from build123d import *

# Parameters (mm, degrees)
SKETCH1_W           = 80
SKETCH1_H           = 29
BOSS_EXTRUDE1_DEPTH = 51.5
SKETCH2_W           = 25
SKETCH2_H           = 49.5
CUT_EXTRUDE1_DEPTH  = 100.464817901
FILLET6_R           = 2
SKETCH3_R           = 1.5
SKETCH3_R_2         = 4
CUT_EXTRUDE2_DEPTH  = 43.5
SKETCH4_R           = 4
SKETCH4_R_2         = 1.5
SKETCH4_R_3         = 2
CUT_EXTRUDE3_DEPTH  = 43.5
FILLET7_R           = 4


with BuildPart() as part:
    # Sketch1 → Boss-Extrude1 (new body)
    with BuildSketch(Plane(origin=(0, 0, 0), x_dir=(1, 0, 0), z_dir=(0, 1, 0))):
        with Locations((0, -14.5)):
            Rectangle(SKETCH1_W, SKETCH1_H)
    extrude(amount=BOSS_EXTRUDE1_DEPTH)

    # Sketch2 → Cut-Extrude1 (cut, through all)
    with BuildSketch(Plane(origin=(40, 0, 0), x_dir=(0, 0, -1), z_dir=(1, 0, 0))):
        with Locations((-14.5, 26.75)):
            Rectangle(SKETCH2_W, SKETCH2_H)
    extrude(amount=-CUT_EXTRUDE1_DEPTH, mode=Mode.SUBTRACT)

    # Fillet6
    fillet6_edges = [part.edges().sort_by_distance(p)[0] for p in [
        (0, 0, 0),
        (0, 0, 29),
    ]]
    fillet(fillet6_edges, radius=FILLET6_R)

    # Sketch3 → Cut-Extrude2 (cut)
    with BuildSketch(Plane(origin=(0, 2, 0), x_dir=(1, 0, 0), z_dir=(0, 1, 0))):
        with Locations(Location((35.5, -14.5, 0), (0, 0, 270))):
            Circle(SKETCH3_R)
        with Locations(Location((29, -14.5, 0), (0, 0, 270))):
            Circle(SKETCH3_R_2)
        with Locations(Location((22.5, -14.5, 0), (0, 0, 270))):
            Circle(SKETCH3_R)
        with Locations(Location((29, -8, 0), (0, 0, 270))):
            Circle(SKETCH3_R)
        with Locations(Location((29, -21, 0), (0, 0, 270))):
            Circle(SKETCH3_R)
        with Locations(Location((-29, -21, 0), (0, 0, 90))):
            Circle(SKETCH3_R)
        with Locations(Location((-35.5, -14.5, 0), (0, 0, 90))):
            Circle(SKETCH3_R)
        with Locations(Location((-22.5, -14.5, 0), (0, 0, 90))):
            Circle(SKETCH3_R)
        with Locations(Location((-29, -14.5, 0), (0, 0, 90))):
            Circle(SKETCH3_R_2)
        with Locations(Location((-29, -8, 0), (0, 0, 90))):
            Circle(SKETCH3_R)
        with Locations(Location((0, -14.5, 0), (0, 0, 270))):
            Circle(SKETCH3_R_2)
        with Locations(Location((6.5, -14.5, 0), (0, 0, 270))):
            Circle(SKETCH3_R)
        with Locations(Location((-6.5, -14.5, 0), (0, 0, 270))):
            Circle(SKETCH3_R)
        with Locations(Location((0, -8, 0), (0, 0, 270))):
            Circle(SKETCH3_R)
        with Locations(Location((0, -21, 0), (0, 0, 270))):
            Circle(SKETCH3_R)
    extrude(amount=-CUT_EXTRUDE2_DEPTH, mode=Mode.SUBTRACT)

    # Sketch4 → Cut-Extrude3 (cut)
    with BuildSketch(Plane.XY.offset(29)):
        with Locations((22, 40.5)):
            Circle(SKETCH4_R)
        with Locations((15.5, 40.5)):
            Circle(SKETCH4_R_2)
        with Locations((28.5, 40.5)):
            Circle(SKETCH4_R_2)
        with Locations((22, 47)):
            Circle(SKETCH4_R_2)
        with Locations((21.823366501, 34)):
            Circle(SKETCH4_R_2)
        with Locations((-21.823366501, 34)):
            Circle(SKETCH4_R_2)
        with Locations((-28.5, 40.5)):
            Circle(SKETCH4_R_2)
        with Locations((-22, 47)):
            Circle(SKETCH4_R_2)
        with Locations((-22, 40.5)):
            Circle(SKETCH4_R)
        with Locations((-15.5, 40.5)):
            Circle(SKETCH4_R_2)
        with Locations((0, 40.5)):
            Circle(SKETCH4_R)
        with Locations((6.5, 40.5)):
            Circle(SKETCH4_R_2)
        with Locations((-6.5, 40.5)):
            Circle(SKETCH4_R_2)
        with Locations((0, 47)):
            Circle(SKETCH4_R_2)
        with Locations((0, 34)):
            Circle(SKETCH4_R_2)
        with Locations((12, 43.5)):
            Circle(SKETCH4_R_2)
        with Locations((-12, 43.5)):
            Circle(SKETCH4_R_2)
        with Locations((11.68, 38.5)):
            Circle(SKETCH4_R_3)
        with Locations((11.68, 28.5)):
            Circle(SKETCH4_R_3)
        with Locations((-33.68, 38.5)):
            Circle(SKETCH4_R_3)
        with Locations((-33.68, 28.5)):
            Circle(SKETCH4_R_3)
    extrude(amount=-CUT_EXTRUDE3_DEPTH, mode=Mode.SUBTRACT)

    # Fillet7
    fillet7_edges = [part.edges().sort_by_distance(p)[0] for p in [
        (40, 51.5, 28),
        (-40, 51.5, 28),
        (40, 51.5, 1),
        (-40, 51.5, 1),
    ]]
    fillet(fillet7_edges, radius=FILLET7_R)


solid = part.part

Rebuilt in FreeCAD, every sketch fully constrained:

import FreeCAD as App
import Part
import Sketcher
from FreeCAD import Vector
Q = App.Units.Quantity


def edges_at(feature, points):
    """Names of the edges that pass closest to the given points."""
    edges = feature.Shape.Edges
    near = lambda p: min(range(len(edges)), key=lambda i: edges[i].distToShape(Part.Vertex(*p))[0])
    return sorted({f"Edge{near(p) + 1}" for p in points})

doc = App.newDocument("Part")
params = doc.addObject("Spreadsheet::Sheet", "Params")
for row, (alias, value) in enumerate([
    ("sketch1_width", "80 mm"),
    ("sketch1_height", "29 mm"),
    ("pad1_length", "51.5 mm"),
    ("sketch2_height", "25 mm"),
    ("sketch2_width", "49.5 mm"),
    ("fillet_radius", "2 mm"),
    ("sketch3_diameter", "3 mm"),
    ("sketch3_diameter2", "8 mm"),
    ("pocket2_length", "43.5 mm"),
    ("sketch4_diameter", "8 mm"),
    ("sketch4_diameter2", "3 mm"),
    ("sketch4_diameter3", "4 mm"),
    ("pocket3_length", "43.5 mm"),
    ("fillet2_radius", "4 mm"),
], start=1):
    params.set(f"A{row}", alias)
    params.set(f"B{row}", "=" + value)
    params.setAlias(f"B{row}", alias)

body = doc.addObject("PartDesign::Body", "Body")

# Sketch on XZ plane
sketch1 = doc.addObject("Sketcher::SketchObject", "Sketch")
body.addObject(sketch1)
sketch1.AttachmentSupport = (doc.XZ_Plane, [""])
sketch1.MapMode = "FlatFace"
sketch1.addGeometry([
    Part.LineSegment(Vector(-40, 0, 0), Vector(-40, 29, 0)),
    Part.LineSegment(Vector(-40, 29, 0), Vector(40, 29, 0)),
    Part.LineSegment(Vector(40, 29, 0), Vector(40, 0, 0)),
    Part.LineSegment(Vector(40, 0, 0), Vector(-40, 0, 0)),
], False)
sketch1.addConstraint([
    Sketcher.Constraint("Coincident", 0, 2, 1, 1),
    Sketcher.Constraint("Coincident", 1, 2, 2, 1),
    Sketcher.Constraint("Coincident", 2, 2, 3, 1),
    Sketcher.Constraint("Coincident", 3, 2, 0, 1),
    Sketcher.Constraint("Vertical", 0),
    Sketcher.Constraint("Horizontal", 1),
    Sketcher.Constraint("Vertical", 2),
    Sketcher.Constraint("Horizontal", 3),
    Sketcher.Constraint("Symmetric", 2, 2, 3, 2, -1, 1),
    Sketcher.Constraint("DistanceX", 1, 1, 1, 2, Q("80 mm")),
    Sketcher.Constraint("DistanceY", 0, 1, 0, 2, Q("29 mm")),
])
sketch1.setExpression("Constraints[9]", "Params.sketch1_width")
sketch1.setExpression("Constraints[10]", "Params.sketch1_height")
pad1 = doc.addObject("PartDesign::Pad", "Pad")
body.addObject(pad1)
pad1.Profile = sketch1
pad1.setExpression("Length", "Params.pad1_length")
pad1.Reversed = True

# Sketch on YZ plane
sketch2 = doc.addObject("Sketcher::SketchObject", "Sketch001")
body.addObject(sketch2)
sketch2.AttachmentSupport = (doc.YZ_Plane, [""])
sketch2.MapMode = "FlatFace"
sketch2.AttachmentOffset = App.Placement(Vector(0, 0, 40), App.Rotation())
sketch2.addGeometry([
    Part.LineSegment(Vector(52, 27, 0), Vector(2, 27, 0)),
    Part.LineSegment(Vector(2, 27, 0), Vector(2, 2, 0)),
    Part.LineSegment(Vector(2, 2, 0), Vector(52, 2, 0)),
    Part.LineSegment(Vector(52, 2, 0), Vector(52, 27, 0)),
], False)
sketch2.addConstraint([
    Sketcher.Constraint("Coincident", 0, 2, 1, 1),
    Sketcher.Constraint("Coincident", 1, 2, 2, 1),
    Sketcher.Constraint("Coincident", 2, 2, 3, 1),
    Sketcher.Constraint("Coincident", 3, 2, 0, 1),
    Sketcher.Constraint("Horizontal", 0),
    Sketcher.Constraint("Vertical", 1),
    Sketcher.Constraint("Horizontal", 2),
    Sketcher.Constraint("Vertical", 3),
    Sketcher.Constraint("DistanceY", 1, 2, 1, 1, Q("25 mm")),
    Sketcher.Constraint("DistanceX", 0, 2, 0, 1, Q("49.5 mm")),
    Sketcher.Constraint("DistanceX", -1, 1, 0, 2, Q("2 mm")),
    Sketcher.Constraint("DistanceY", -1, 1, 0, 2, Q("27 mm")),
])
sketch2.setExpression("Constraints[8]", "Params.sketch2_height")
sketch2.setExpression("Constraints[9]", "Params.sketch2_width")
pocket1 = doc.addObject("PartDesign::Pocket", "Pocket")
body.addObject(pocket1)
pocket1.Profile = sketch2
pocket1.Type = "ThroughAll"
doc.recompute()

fillet = doc.addObject("PartDesign::Fillet", "Fillet")
body.addObject(fillet)
fillet.Base = (pocket1, edges_at(pocket1, [(0, 0, 0), (0, 0, 29)]))
fillet.setExpression("Radius", "Params.fillet_radius")

# Sketch on XZ plane
sketch3 = doc.addObject("Sketcher::SketchObject", "Sketch002")
body.addObject(sketch3)
sketch3.AttachmentSupport = (doc.XZ_Plane, [""])
sketch3.MapMode = "FlatFace"
sketch3.AttachmentOffset = App.Placement(Vector(0, 0, -2), App.Rotation())
sketch3.addGeometry([
    Part.Circle(Vector(35.5, 14.5, 0), Vector(0, 0, 1), 1.5),  # 0
    Part.Circle(Vector(29, 14.5, 0), Vector(0, 0, 1), 4),  # 1
    Part.Circle(Vector(22.5, 14.5, 0), Vector(0, 0, 1), 1.5),  # 2
    Part.Circle(Vector(29, 8, 0), Vector(0, 0, 1), 1.5),  # 3
    Part.Circle(Vector(29, 21, 0), Vector(0, 0, 1), 1.5),  # 4
    Part.Circle(Vector(-29, 21, 0), Vector(0, 0, 1), 1.5),  # 5
    Part.Circle(Vector(-35.5, 14.5, 0), Vector(0, 0, 1), 1.5),  # 6
    Part.Circle(Vector(-22.5, 14.5, 0), Vector(0, 0, 1), 1.5),  # 7
    Part.Circle(Vector(-29, 14.5, 0), Vector(0, 0, 1), 4),  # 8
    Part.Circle(Vector(-29, 8, 0), Vector(0, 0, 1), 1.5),  # 9
    Part.Circle(Vector(0, 14.5, 0), Vector(0, 0, 1), 4),  # 10
    Part.Circle(Vector(6.5, 14.5, 0), Vector(0, 0, 1), 1.5),  # 11
    Part.Circle(Vector(-6.5, 14.5, 0), Vector(0, 0, 1), 1.5),  # 12
    Part.Circle(Vector(0, 8, 0), Vector(0, 0, 1), 1.5),  # 13
    Part.Circle(Vector(0, 21, 0), Vector(0, 0, 1), 1.5),  # 14
], False)
sketch3.addConstraint([
    Sketcher.Constraint("Equal", 0, 2),
    Sketcher.Constraint("Equal", 2, 3),
    Sketcher.Constraint("Equal", 3, 4),
    Sketcher.Constraint("Equal", 4, 5),
    Sketcher.Constraint("Equal", 5, 6),
    Sketcher.Constraint("Equal", 6, 7),
    Sketcher.Constraint("Equal", 1, 8),
    Sketcher.Constraint("Equal", 7, 9),
    Sketcher.Constraint("Equal", 8, 10),
    Sketcher.Constraint("Equal", 9, 11),
    Sketcher.Constraint("Equal", 11, 12),
    Sketcher.Constraint("Equal", 12, 13),
    Sketcher.Constraint("Equal", 13, 14),
    Sketcher.Constraint("Symmetric", 4, 3, 5, 3, -2),
    Sketcher.Constraint("Symmetric", 0, 3, 6, 3, -2),
    Sketcher.Constraint("Symmetric", 2, 3, 7, 3, -2),
    Sketcher.Constraint("Symmetric", 1, 3, 8, 3, -2),
    Sketcher.Constraint("Symmetric", 3, 3, 9, 3, -2),
    Sketcher.Constraint("Symmetric", 11, 3, 12, 3, -2),
    Sketcher.Constraint("PointOnObject", 10, 3, -2),
    Sketcher.Constraint("PointOnObject", 13, 3, -2),
    Sketcher.Constraint("PointOnObject", 14, 3, -2),
    Sketcher.Constraint("Horizontal", 0, 3, 1, 3),
    Sketcher.Constraint("Horizontal", 1, 3, 2, 3),
    Sketcher.Constraint("Horizontal", 8, 3, 10, 3),
    Sketcher.Constraint("Horizontal", 10, 3, 11, 3),
    Sketcher.Constraint("Horizontal", 9, 3, 13, 3),
    Sketcher.Constraint("Horizontal", 5, 3, 14, 3),
    Sketcher.Constraint("Vertical", 1, 3, 3, 3),
    Sketcher.Constraint("Vertical", 3, 3, 4, 3),
    Sketcher.Constraint("Diameter", 0, Q("3 mm")),
    Sketcher.Constraint("Diameter", 1, Q("8 mm")),
    Sketcher.Constraint("DistanceX", -1, 1, 1, 3, Q("29 mm")),
    Sketcher.Constraint("DistanceY", -1, 1, 3, 3, Q("8 mm")),
    Sketcher.Constraint("DistanceY", -1, 1, 4, 3, Q("21 mm")),
    Sketcher.Constraint("DistanceX", 2, 3, 0, 3, Q("13 mm")),
    Sketcher.Constraint("DistanceX", 6, 3, 2, 3, Q("58 mm")),
    Sketcher.Constraint("DistanceX", 11, 3, 2, 3, Q("16 mm")),
    Sketcher.Constraint("DistanceY", -1, 1, 0, 3, Q("14.5 mm")),
])
sketch3.setExpression("Constraints[30]", "Params.sketch3_diameter")
sketch3.setExpression("Constraints[31]", "Params.sketch3_diameter2")
pocket2 = doc.addObject("PartDesign::Pocket", "Pocket001")
body.addObject(pocket2)
pocket2.Profile = sketch3
pocket2.setExpression("Length", "Params.pocket2_length")
pocket2.Reversed = True

# Sketch on XY plane
sketch4 = doc.addObject("Sketcher::SketchObject", "Sketch003")
body.addObject(sketch4)
sketch4.AttachmentSupport = (doc.XY_Plane, [""])
sketch4.MapMode = "FlatFace"
sketch4.AttachmentOffset = App.Placement(Vector(0, 0, 29), App.Rotation())
sketch4.addGeometry([
    Part.Circle(Vector(22, 40.5, 0), Vector(0, 0, 1), 4),  # 0
    Part.Circle(Vector(15.5, 40.5, 0), Vector(0, 0, 1), 1.5),  # 1
    Part.Circle(Vector(28.5, 40.5, 0), Vector(0, 0, 1), 1.5),  # 2
    Part.Circle(Vector(22, 47, 0), Vector(0, 0, 1), 1.5),  # 3
    Part.Circle(Vector(21.8, 34, 0), Vector(0, 0, 1), 1.5),  # 4
    Part.Circle(Vector(-21.8, 34, 0), Vector(0, 0, 1), 1.5),  # 5
    Part.Circle(Vector(-28.5, 40.5, 0), Vector(0, 0, 1), 1.5),  # 6
    Part.Circle(Vector(-22, 47, 0), Vector(0, 0, 1), 1.5),  # 7
    Part.Circle(Vector(-22, 40.5, 0), Vector(0, 0, 1), 4),  # 8
    Part.Circle(Vector(-15.5, 40.5, 0), Vector(0, 0, 1), 1.5),  # 9
    Part.Circle(Vector(0, 40.5, 0), Vector(0, 0, 1), 4),  # 10
    Part.Circle(Vector(6.5, 40.5, 0), Vector(0, 0, 1), 1.5),  # 11
    Part.Circle(Vector(-6.5, 40.5, 0), Vector(0, 0, 1), 1.5),  # 12
    Part.Circle(Vector(0, 47, 0), Vector(0, 0, 1), 1.5),  # 13
    Part.Circle(Vector(0, 34, 0), Vector(0, 0, 1), 1.5),  # 14
    Part.Circle(Vector(12, 43.5, 0), Vector(0, 0, 1), 1.5),  # 15
    Part.Circle(Vector(-12, 43.5, 0), Vector(0, 0, 1), 1.5),  # 16
    Part.Circle(Vector(11.7, 38.5, 0), Vector(0, 0, 1), 2),  # 17
    Part.Circle(Vector(11.7, 28.5, 0), Vector(0, 0, 1), 2),  # 18
    Part.Circle(Vector(-33.7, 38.5, 0), Vector(0, 0, 1), 2),  # 19
    Part.Circle(Vector(-33.7, 28.5, 0), Vector(0, 0, 1), 2),  # 20
], False)
sketch4.addConstraint([
    Sketcher.Constraint("Equal", 1, 2),
    Sketcher.Constraint("Equal", 2, 3),
    Sketcher.Constraint("Equal", 3, 4),
    Sketcher.Constraint("Equal", 4, 5),
    Sketcher.Constraint("Equal", 5, 6),
    Sketcher.Constraint("Equal", 6, 7),
    Sketcher.Constraint("Equal", 0, 8),
    Sketcher.Constraint("Equal", 7, 9),
    Sketcher.Constraint("Equal", 8, 10),
    Sketcher.Constraint("Equal", 9, 11),
    Sketcher.Constraint("Equal", 11, 12),
    Sketcher.Constraint("Equal", 12, 13),
    Sketcher.Constraint("Equal", 13, 14),
    Sketcher.Constraint("Equal", 14, 15),
    Sketcher.Constraint("Equal", 15, 16),
    Sketcher.Constraint("Equal", 17, 18),
    Sketcher.Constraint("Equal", 18, 19),
    Sketcher.Constraint("Equal", 19, 20),
    Sketcher.Constraint("Symmetric", 4, 3, 5, 3, -2),
    Sketcher.Constraint("Symmetric", 2, 3, 6, 3, -2),
    Sketcher.Constraint("Symmetric", 3, 3, 7, 3, -2),
    Sketcher.Constraint("Symmetric", 0, 3, 8, 3, -2),
    Sketcher.Constraint("Symmetric", 1, 3, 9, 3, -2),
    Sketcher.Constraint("Symmetric", 11, 3, 12, 3, -2),
    Sketcher.Constraint("Symmetric", 15, 3, 16, 3, -2),
    Sketcher.Constraint("PointOnObject", 10, 3, -2),
    Sketcher.Constraint("PointOnObject", 13, 3, -2),
    Sketcher.Constraint("PointOnObject", 14, 3, -2),
    Sketcher.Constraint("Horizontal", 0, 3, 1, 3),
    Sketcher.Constraint("Horizontal", 1, 3, 2, 3),
    Sketcher.Constraint("Horizontal", 9, 3, 10, 3),
    Sketcher.Constraint("Horizontal", 10, 3, 11, 3),
    Sketcher.Constraint("Horizontal", 7, 3, 13, 3),
    Sketcher.Constraint("Horizontal", 5, 3, 14, 3),
    Sketcher.Constraint("Horizontal", 17, 3, 19, 3),
    Sketcher.Constraint("Horizontal", 18, 3, 20, 3),
    Sketcher.Constraint("Vertical", 0, 3, 3, 3),
    Sketcher.Constraint("Vertical", 17, 3, 18, 3),
    Sketcher.Constraint("Vertical", 19, 3, 20, 3),
    Sketcher.Constraint("Diameter", 0, Q("8 mm")),
    Sketcher.Constraint("Diameter", 1, Q("3 mm")),
    Sketcher.Constraint("Diameter", 17, Q("4 mm")),
    Sketcher.Constraint("DistanceX", -1, 1, 0, 3, Q("22 mm")),
    Sketcher.Constraint("DistanceY", -1, 1, 3, 3, Q("47 mm")),
    Sketcher.Constraint("DistanceY", -1, 1, 4, 3, Q("34 mm")),
    Sketcher.Constraint("DistanceX", -1, 1, 15, 3, Q("12 mm")),
    Sketcher.Constraint("DistanceX", 1, 3, 2, 3, Q("13 mm")),
    Sketcher.Constraint("DistanceX", 6, 3, 1, 3, Q("44 mm")),
    Sketcher.Constraint("DistanceX", 11, 3, 1, 3, Q("9 mm")),
    Sketcher.Constraint("DistanceY", 1, 3, 15, 3, Q("3 mm")),
    Sketcher.Constraint("DistanceY", 17, 3, 1, 3, Q("2 mm")),
    Sketcher.Constraint("DistanceY", 18, 3, 17, 3, Q("10 mm")),
    Sketcher.Constraint("DistanceY", -1, 1, 0, 3, Q("40.5 mm")),
    Sketcher.Constraint("DistanceX", -1, 1, 17, 3, Q("11.68 mm")),
    Sketcher.Constraint("DistanceX", 19, 3, -1, 1, Q("33.68 mm")),
    Sketcher.Constraint("DistanceX", -1, 1, 4, 3, Q("21.823367 mm")),
])
sketch4.setExpression("Constraints[39]", "Params.sketch4_diameter")
sketch4.setExpression("Constraints[40]", "Params.sketch4_diameter2")
sketch4.setExpression("Constraints[41]", "Params.sketch4_diameter3")
pocket3 = doc.addObject("PartDesign::Pocket", "Pocket002")
body.addObject(pocket3)
pocket3.Profile = sketch4
pocket3.setExpression("Length", "Params.pocket3_length")
doc.recompute()

fillet2 = doc.addObject("PartDesign::Fillet", "Fillet001")
body.addObject(fillet2)
fillet2.Base = (pocket3, edges_at(pocket3, [
    (40, 51.5, 28),
    (-40, 51.5, 28),
    (40, 51.5, 1),
    (-40, 51.5, 1),
]))
fillet2.setExpression("Radius", "Params.fillet2_radius")

doc.recompute()
